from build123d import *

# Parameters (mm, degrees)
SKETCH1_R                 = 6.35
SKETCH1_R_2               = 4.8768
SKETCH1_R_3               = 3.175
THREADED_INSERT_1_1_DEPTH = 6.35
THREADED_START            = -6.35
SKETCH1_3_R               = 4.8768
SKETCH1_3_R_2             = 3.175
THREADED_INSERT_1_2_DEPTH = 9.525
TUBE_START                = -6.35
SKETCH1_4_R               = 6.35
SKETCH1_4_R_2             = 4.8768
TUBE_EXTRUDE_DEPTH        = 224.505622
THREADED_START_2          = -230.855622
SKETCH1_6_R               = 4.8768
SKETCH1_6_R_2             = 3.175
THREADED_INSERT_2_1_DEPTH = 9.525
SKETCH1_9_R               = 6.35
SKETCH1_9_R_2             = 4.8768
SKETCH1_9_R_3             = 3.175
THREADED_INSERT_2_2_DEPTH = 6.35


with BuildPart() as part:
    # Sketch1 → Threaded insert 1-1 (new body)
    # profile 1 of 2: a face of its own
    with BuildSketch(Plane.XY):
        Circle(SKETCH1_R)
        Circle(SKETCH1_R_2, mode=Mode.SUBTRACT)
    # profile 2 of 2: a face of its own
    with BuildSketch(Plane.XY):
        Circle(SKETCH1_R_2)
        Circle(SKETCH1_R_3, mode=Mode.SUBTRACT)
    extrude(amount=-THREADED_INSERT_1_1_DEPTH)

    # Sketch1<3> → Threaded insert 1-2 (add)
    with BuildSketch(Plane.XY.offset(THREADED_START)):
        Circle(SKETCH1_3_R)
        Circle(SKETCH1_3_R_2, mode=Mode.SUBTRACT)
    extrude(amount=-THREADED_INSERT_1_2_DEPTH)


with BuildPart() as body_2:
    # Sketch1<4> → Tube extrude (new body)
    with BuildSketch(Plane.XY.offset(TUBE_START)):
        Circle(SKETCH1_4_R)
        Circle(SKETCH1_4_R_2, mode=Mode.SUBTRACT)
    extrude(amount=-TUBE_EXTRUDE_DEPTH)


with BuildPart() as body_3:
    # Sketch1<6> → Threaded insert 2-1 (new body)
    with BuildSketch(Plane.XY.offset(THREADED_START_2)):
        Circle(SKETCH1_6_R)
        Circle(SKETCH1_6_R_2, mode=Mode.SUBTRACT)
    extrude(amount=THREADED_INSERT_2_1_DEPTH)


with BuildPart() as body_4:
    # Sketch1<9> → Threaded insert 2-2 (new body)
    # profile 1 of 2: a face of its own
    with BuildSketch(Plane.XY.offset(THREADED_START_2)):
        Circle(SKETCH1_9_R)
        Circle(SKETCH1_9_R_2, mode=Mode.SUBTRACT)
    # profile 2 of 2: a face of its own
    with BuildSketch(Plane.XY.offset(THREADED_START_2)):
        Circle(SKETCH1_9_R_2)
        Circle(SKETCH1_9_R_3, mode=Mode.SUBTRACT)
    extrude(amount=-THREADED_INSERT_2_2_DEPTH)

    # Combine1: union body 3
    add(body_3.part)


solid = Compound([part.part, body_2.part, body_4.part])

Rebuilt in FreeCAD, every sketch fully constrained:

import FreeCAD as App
import Part
import Sketcher
Q = App.Units.Quantity

doc = App.newDocument("Part")
body = doc.addObject("PartDesign::Body", "Body")

# Sketch on XY plane
sketch1 = doc.addObject("Sketcher::SketchObject", "Sketch")
body.addObject(sketch1)
sketch1.AttachmentSupport = (doc.XY_Plane, [""])
sketch1.MapMode = "FlatFace"
sketch1.addGeometry([
    Part.Circle(App.Vector(0, 0, 0), App.Vector(0, 0, 1), 6.3),
    Part.Circle(App.Vector(0, 0, 0), App.Vector(0, 0, 1), 3.2),
], False)
sketch1.addConstraint([
    Sketcher.Constraint("Coincident", 0, 3, -1, 1),
    Sketcher.Constraint("Coincident", 1, 3, -1, 1),
    Sketcher.Constraint("Diameter", 0, Q("0.5 in")),
    Sketcher.Constraint("Diameter", 1, Q("0.25 in")),
])
pad1 = doc.addObject("PartDesign::Pad", "Pad")
body.addObject(pad1)
pad1.Profile = sketch1
pad1.Length = Q("0.25 in")
pad1.Reversed = True

# Sketch on XY plane
sketch2 = doc.addObject("Sketcher::SketchObject", "Sketch001")
body.addObject(sketch2)
sketch2.AttachmentSupport = (doc.XY_Plane, [""])
sketch2.MapMode = "FlatFace"
sketch2.AttachmentOffset = App.Placement(App.Vector(0, 0, -0.25 * 25.4), App.Rotation())
sketch2.addGeometry([
    Part.Circle(App.Vector(0, 0, 0), App.Vector(0, 0, 1), 4.9),
    Part.Circle(App.Vector(0, 0, 0), App.Vector(0, 0, 1), 3.2),
], False)
sketch2.addConstraint([
    Sketcher.Constraint("Coincident", 0, 3, -1, 1),
    Sketcher.Constraint("Coincident", 1, 3, -1, 1),
    Sketcher.Constraint("Diameter", 1, Q("0.25 in")),
    Sketcher.Constraint("Diameter", 0, Q("0.384 in")),
])
pad2 = doc.addObject("PartDesign::Pad", "Pad001")
body.addObject(pad2)
pad2.Profile = sketch2
pad2.Length = Q("0.375 in")
pad2.Reversed = True
body2 = doc.addObject("PartDesign::Body", "Body001")

# Sketch on XY plane
sketch3 = doc.addObject("Sketcher::SketchObject", "Sketch002")
body2.addObject(sketch3)
sketch3.AttachmentSupport = (doc.getObject("XY_Plane001"), [""])
sketch3.MapMode = "FlatFace"
sketch3.AttachmentOffset = App.Placement(App.Vector(0, 0, -0.25 * 25.4), App.Rotation())
sketch3.addGeometry([
    Part.Circle(App.Vector(0, 0, 0), App.Vector(0, 0, 1), 6.3),
    Part.Circle(App.Vector(0, 0, 0), App.Vector(0, 0, 1), 4.9),
], False)
sketch3.addConstraint([
    Sketcher.Constraint("Coincident", 0, 3, -1, 1),
    Sketcher.Constraint("Coincident", 1, 3, -1, 1),
    Sketcher.Constraint("Diameter", 0, Q("0.5 in")),
    Sketcher.Constraint("Diameter", 1, Q("0.384 in")),
])
pad3 = doc.addObject("PartDesign::Pad", "Pad002")
body2.addObject(pad3)
pad3.Profile = sketch3
pad3.Length = 224.505622
pad3.Reversed = True
body3 = doc.addObject("PartDesign::Body", "Body002")

# Sketch on XY plane
sketch4 = doc.addObject("Sketcher::SketchObject", "Sketch003")
body3.addObject(sketch4)
sketch4.AttachmentSupport = (doc.getObject("XY_Plane002"), [""])
sketch4.MapMode = "FlatFace"
sketch4.AttachmentOffset = App.Placement(App.Vector(0, 0, -230.855622), App.Rotation())
sketch4.addGeometry([
    Part.Circle(App.Vector(0, 0, 0), App.Vector(0, 0, 1), 4.9),
    Part.Circle(App.Vector(0, 0, 0), App.Vector(0, 0, 1), 3.2),
], False)
sketch4.addConstraint([
    Sketcher.Constraint("Coincident", 0, 3, -1, 1),
    Sketcher.Constraint("Coincident", 1, 3, -1, 1),
    Sketcher.Constraint("Diameter", 1, Q("0.25 in")),
    Sketcher.Constraint("Diameter", 0, Q("0.384 in")),
])
pad4 = doc.addObject("PartDesign::Pad", "Pad003")
body3.addObject(pad4)
pad4.Profile = sketch4
pad4.Length = Q("0.375 in")
body4 = doc.addObject("PartDesign::Body", "Body003")

# Sketch on XY plane
sketch5 = doc.addObject("Sketcher::SketchObject", "Sketch004")
body4.addObject(sketch5)
sketch5.AttachmentSupport = (doc.getObject("XY_Plane003"), [""])
sketch5.MapMode = "FlatFace"
sketch5.AttachmentOffset = App.Placement(App.Vector(0, 0, -230.855622), App.Rotation())
sketch5.addGeometry([
    Part.Circle(App.Vector(0, 0, 0), App.Vector(0, 0, 1), 6.3),
    Part.Circle(App.Vector(0, 0, 0), App.Vector(0, 0, 1), 3.2),
], False)
sketch5.addConstraint([
    Sketcher.Constraint("Coincident", 0, 3, -1, 1),
    Sketcher.Constraint("Coincident", 1, 3, -1, 1),
    Sketcher.Constraint("Diameter", 0, Q("0.5 in")),
    Sketcher.Constraint("Diameter", 1, Q("0.25 in")),
])
pad5 = doc.addObject("PartDesign::Pad", "Pad004")
body4.addObject(pad5)
pad5.Profile = sketch5
pad5.Length = Q("0.25 in")
pad5.Reversed = True
doc.recompute()

boolean = doc.addObject("PartDesign::Boolean", "Boolean")
body4.addObject(boolean)
boolean.Type = "Fuse"
boolean.addObjects([body3])

doc.recompute()
